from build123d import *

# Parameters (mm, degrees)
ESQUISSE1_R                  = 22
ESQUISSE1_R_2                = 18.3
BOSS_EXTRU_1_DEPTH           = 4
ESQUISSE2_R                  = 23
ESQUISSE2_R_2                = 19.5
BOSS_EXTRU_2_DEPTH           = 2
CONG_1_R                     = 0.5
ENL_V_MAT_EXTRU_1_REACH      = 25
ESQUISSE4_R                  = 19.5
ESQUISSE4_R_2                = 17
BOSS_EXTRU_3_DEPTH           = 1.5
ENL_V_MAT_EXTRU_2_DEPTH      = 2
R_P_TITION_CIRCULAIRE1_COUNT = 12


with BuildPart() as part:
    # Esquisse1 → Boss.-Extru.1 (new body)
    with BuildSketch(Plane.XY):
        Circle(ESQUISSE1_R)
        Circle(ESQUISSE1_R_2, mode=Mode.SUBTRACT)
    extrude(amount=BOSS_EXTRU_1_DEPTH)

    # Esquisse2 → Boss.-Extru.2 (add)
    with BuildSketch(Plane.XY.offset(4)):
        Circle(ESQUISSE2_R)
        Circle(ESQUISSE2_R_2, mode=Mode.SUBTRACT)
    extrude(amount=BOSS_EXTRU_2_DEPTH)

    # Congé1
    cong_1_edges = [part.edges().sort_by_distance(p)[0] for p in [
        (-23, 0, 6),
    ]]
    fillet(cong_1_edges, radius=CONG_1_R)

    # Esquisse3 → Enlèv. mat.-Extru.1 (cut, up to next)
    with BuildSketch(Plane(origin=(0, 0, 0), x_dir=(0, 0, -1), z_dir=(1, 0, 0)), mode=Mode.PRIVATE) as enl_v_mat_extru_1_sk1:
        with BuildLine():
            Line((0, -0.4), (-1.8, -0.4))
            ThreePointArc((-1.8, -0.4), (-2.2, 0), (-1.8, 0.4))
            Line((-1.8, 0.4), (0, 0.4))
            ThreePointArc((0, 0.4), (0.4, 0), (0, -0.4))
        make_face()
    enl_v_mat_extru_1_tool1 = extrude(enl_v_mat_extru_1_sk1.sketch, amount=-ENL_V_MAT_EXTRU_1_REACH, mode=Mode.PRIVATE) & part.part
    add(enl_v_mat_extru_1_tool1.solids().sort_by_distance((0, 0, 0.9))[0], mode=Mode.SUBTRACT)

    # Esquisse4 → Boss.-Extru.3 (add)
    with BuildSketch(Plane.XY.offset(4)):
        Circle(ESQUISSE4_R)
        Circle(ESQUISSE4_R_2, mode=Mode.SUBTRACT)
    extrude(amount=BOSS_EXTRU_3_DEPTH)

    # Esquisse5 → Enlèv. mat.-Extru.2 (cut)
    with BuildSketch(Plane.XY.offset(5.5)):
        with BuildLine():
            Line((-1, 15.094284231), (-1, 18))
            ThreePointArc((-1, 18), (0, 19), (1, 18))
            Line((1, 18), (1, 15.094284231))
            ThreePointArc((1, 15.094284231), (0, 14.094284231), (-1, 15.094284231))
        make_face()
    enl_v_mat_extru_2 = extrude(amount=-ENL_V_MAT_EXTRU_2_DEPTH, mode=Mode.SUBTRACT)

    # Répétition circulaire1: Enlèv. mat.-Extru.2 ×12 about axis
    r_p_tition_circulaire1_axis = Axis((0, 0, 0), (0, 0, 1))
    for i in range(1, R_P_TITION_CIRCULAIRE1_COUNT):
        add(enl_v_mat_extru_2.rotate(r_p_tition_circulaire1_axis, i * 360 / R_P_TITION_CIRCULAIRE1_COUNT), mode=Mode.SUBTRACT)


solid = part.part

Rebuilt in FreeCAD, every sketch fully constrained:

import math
import FreeCAD as App
import Part
import Sketcher

V = App.Vector
Q = App.Units.Quantity


def edges_at(feature, points):
    """Names of the edges that pass closest to the given points."""
    edges = feature.Shape.Edges
    near = lambda p: min(range(len(edges)), key=lambda i: edges[i].distToShape(Part.Vertex(*p))[0])
    return sorted({f"Edge{near(p) + 1}" for p in points})

doc = App.newDocument("Part")
body = doc.addObject("PartDesign::Body", "Body")

# Sketch on XY plane
sketch1 = body.newObject("Sketcher::SketchObject", "Sketch")
sketch1.AttachmentSupport = (doc.getObject("XY_Plane"), [""])
sketch1.MapMode = "FlatFace"
sketch1.addGeometry(Part.Circle(V(0, 0, 0), V(0, 0, 1), 22), False)
sketch1.addGeometry(Part.Circle(V(0, 0, 0), V(0, 0, 1), 18), False)
sketch1.addConstraint(Sketcher.Constraint("Coincident", 0, 3, -1, 1))
sketch1.addConstraint(Sketcher.Constraint("Coincident", 1, 3, -1, 1))
sketch1.addConstraint(Sketcher.Constraint("Diameter", 0, Q("44 mm")))
sketch1.addConstraint(Sketcher.Constraint("Diameter", 1, Q("36.6 mm")))
pad1 = body.newObject("PartDesign::Pad", "Pad")
pad1.Profile = sketch1
pad1.Length = 4

# Sketch on XY plane
sketch2 = body.newObject("Sketcher::SketchObject", "Sketch001")
sketch2.AttachmentSupport = (doc.getObject("XY_Plane"), [""])
sketch2.MapMode = "FlatFace"
sketch2.AttachmentOffset = App.Placement(V(0, 0, 4), App.Rotation())
sketch2.addGeometry(Part.Circle(V(0, 0, 0), V(0, 0, 1), 23), False)
sketch2.addGeometry(Part.Circle(V(0, 0, 0), V(0, 0, 1), 20), False)
sketch2.addConstraint(Sketcher.Constraint("Coincident", 0, 3, -1, 1))
sketch2.addConstraint(Sketcher.Constraint("Coincident", 1, 3, -1, 1))
sketch2.addConstraint(Sketcher.Constraint("Diameter", 0, Q("46 mm")))
sketch2.addConstraint(Sketcher.Constraint("Diameter", 1, Q("39 mm")))
pad2 = body.newObject("PartDesign::Pad", "Pad001")
pad2.Profile = sketch2
pad2.Length = 2
doc.recompute()

fillet = body.newObject("PartDesign::Fillet", "Fillet")
fillet.Base = (pad2, edges_at(pad2, [(-23, 0, 6)]))
fillet.Radius = 0.5

# Sketch on YZ plane
sketch3 = body.newObject("Sketcher::SketchObject", "Sketch002")
sketch3.AttachmentSupport = (doc.getObject("YZ_Plane"), [""])
sketch3.MapMode = "FlatFace"
sketch3.addGeometry(Part.LineSegment(V(-0.4, 1.8, 0), V(-0.4, 0, 0)), False)
sketch3.addGeometry(Part.ArcOfCircle(Part.Circle(V(0, 0, 0), V(0, 0, 1), 0.4), math.radians(180), math.radians(360)), False)
sketch3.addGeometry(Part.LineSegment(V(0.4, 0, 0), V(0.4, 1.8, 0)), False)
sketch3.addGeometry(Part.ArcOfCircle(Part.Circle(V(0, 1.8, 0), V(0, 0, 1), 0.4), math.radians(0), math.radians(180)), False)
sketch3.addConstraint(Sketcher.Constraint("Tangent", 0, 2, 1, 1))
sketch3.addConstraint(Sketcher.Constraint("Tangent", 1, 2, 2, 1))
sketch3.addConstraint(Sketcher.Constraint("Tangent", 2, 2, 3, 1))
sketch3.addConstraint(Sketcher.Constraint("Tangent", 3, 2, 0, 1))
sketch3.addConstraint(Sketcher.Constraint("Vertical", 0))
sketch3.addConstraint(Sketcher.Constraint("Vertical", 2))
sketch3.addConstraint(Sketcher.Constraint("Coincident", 1, 3, -1, 1))
sketch3.addConstraint(Sketcher.Constraint("Radius", 1, Q("0.4 mm")))
sketch3.addConstraint(Sketcher.Constraint("DistanceY", 0, 2, 0, 1, Q("1.8 mm")))
pocket1 = body.newObject("PartDesign::Pocket", "Pocket")
pocket1.Profile = sketch3
pocket1.Type = "UpToFirst"

# Sketch on XY plane
sketch4 = body.newObject("Sketcher::SketchObject", "Sketch003")
sketch4.AttachmentSupport = (doc.getObject("XY_Plane"), [""])
sketch4.MapMode = "FlatFace"
sketch4.AttachmentOffset = App.Placement(V(0, 0, 4), App.Rotation())
sketch4.addGeometry(Part.Circle(V(0, 0, 0), V(0, 0, 1), 20), False)
sketch4.addGeometry(Part.Circle(V(0, 0, 0), V(0, 0, 1), 17), False)
sketch4.addConstraint(Sketcher.Constraint("Coincident", 0, 3, -1, 1))
sketch4.addConstraint(Sketcher.Constraint("Coincident", 1, 3, -1, 1))
sketch4.addConstraint(Sketcher.Constraint("Diameter", 0, Q("39 mm")))
sketch4.addConstraint(Sketcher.Constraint("Diameter", 1, Q("34 mm")))
pad3 = body.newObject("PartDesign::Pad", "Pad002")
pad3.Profile = sketch4
pad3.Length = 1.5

# Sketch on XY plane
sketch5 = body.newObject("Sketcher::SketchObject", "Sketch004")
sketch5.AttachmentSupport = (doc.getObject("XY_Plane"), [""])
sketch5.MapMode = "FlatFace"
sketch5.AttachmentOffset = App.Placement(V(0, 0, 5.5), App.Rotation())
sketch5.addGeometry(Part.LineSegment(V(-1, 18, 0), V(-1, 15.1, 0)), False)
sketch5.addGeometry(Part.ArcOfCircle(Part.Circle(V(0, 15.1, 0), V(0, 0, 1), 1), math.radians(180), math.radians(360)), False)
sketch5.addGeometry(Part.LineSegment(V(1, 15.1, 0), V(1, 18, 0)), False)
sketch5.addGeometry(Part.ArcOfCircle(Part.Circle(V(0, 18, 0), V(0, 0, 1), 1), math.radians(0), math.radians(180)), False)
sketch5.addConstraint(Sketcher.Constraint("Tangent", 0, 2, 1, 1))
sketch5.addConstraint(Sketcher.Constraint("Tangent", 1, 2, 2, 1))
sketch5.addConstraint(Sketcher.Constraint("Tangent", 2, 2, 3, 1))
sketch5.addConstraint(Sketcher.Constraint("Tangent", 3, 2, 0, 1))
sketch5.addConstraint(Sketcher.Constraint("Vertical", 0))
sketch5.addConstraint(Sketcher.Constraint("Vertical", 2))
sketch5.addConstraint(Sketcher.Constraint("PointOnObject", 1, 3, -2))
sketch5.addConstraint(Sketcher.Constraint("Radius", 1, Q("1 mm")))
sketch5.addConstraint(Sketcher.Constraint("DistanceY", -1, 1, 3, 3, Q("18 mm")))
sketch5.addConstraint(Sketcher.Constraint("DistanceY", 0, 2, 0, 1, Q("2.905716 mm")))
pocket2 = body.newObject("PartDesign::Pocket", "Pocket001")
pocket2.Profile = sketch5
pocket2.Length = 2
doc.recompute()

polarpattern = body.newObject("PartDesign::PolarPattern", "PolarPattern")
polarpattern.Originals = [pocket2]
polarpattern.Axis = (doc.getObject("Z_Axis"), [""])
polarpattern.Angle = 360
polarpattern.Occurrences = 12
body.Tip = polarpattern

doc.recompute()
